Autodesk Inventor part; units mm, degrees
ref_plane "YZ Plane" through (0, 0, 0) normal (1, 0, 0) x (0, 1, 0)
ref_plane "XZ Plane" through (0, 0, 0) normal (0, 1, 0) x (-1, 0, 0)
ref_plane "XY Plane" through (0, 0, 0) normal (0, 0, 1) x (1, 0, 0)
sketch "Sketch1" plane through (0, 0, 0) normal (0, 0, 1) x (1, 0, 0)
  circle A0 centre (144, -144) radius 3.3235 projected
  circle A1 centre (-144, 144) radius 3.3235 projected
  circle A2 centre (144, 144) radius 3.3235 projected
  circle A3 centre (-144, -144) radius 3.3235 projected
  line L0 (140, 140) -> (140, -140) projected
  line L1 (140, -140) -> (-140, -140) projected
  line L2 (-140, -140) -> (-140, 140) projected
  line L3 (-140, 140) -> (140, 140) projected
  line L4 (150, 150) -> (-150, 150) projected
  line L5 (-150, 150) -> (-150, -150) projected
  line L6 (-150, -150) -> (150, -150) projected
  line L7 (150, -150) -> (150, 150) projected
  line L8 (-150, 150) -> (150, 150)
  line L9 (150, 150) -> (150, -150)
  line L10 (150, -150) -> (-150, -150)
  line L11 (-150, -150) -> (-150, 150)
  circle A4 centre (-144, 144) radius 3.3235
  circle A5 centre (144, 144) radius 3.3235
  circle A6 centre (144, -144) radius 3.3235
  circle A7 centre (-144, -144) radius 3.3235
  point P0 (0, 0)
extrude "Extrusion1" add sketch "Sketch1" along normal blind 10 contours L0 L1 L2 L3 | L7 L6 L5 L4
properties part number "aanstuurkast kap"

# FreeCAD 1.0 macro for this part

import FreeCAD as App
import Part
import Sketcher
from FreeCAD import Vector


def add_polygon(sketch, points):
    """Adds a closed chain of lines whose ends are joined by coincident constraints."""
    first, n = sketch.GeometryCount, len(points)
    for a, b in zip(points, points[1:] + points[:1]):
        sketch.addGeometry(Part.LineSegment(App.Vector(*a, 0), App.Vector(*b, 0)), False)
    for i in range(n):
        sketch.addConstraint(Sketcher.Constraint("Coincident", first + i, 2, first + (i + 1) % n, 1))

doc = App.newDocument("Part")
params = doc.addObject("Spreadsheet::Sheet", "Params")
for row, (alias, value) in enumerate([
    ("sketch1_width", "300 mm"),
    ("pad1_length", "10 mm"),
], start=1):
    params.set(f"A{row}", alias)
    params.set(f"B{row}", "=" + value)
    params.setAlias(f"B{row}", alias)

body = doc.addObject("PartDesign::Body", "Body")

# Sketch on XY plane
sketch1 = body.newObject("Sketcher::SketchObject", "Sketch")
sketch1.AttachmentSupport = (doc.getObject("XY_Plane"), [""])
sketch1.MapMode = "FlatFace"
add_polygon(sketch1, [(150, -150), (150, 150), (-150, 150), (-150, -150)])  # lines 0-3
sketch1.addGeometry(Part.Circle(Vector(-144, -144, 0), Vector(0, 0, 1), 3.3), False)  # 4
sketch1.addGeometry(Part.Circle(Vector(144, -144, 0), Vector(0, 0, 1), 3.3), False)  # 5
sketch1.addGeometry(Part.Circle(Vector(-144, 144, 0), Vector(0, 0, 1), 3.3), False)  # 6
sketch1.addGeometry(Part.Circle(Vector(144, 144, 0), Vector(0, 0, 1), 3.3), False)  # 7
sketch1.addConstraint([
    Sketcher.Constraint("Vertical", 0),
    Sketcher.Constraint("Horizontal", 1),
    Sketcher.Constraint("Vertical", 2),
    Sketcher.Constraint("Horizontal", 3),
    Sketcher.Constraint("Equal", 4, 5),
    Sketcher.Constraint("Equal", 5, 6),
    Sketcher.Constraint("Equal", 6, 7),
    Sketcher.Constraint("Symmetric", 5, 3, 6, 3, -1, 1),
    Sketcher.Constraint("Symmetric", 4, 3, 7, 3, -1, 1),
    Sketcher.Constraint("Symmetric", 0, 2, 2, 2, -1, 1),
    Sketcher.Constraint("Symmetric", 4, 3, 5, 3, -2),
    Sketcher.Constraint("Equal", 3, 0),
    Sketcher.Constraint("DistanceX", 1, 2, 1, 1, 300.0),
    Sketcher.Constraint("Diameter", 4, 6.647),
    Sketcher.Constraint("DistanceX", 4, 3, -1, 1, 144.0),
    Sketcher.Constraint("DistanceY", 4, 3, -1, 1, 144.0),
])
sketch1.setExpression("Constraints[16]", "Params.sketch1_width")
pad1 = body.newObject("PartDesign::Pad", "Pad")
pad1.Profile = sketch1
pad1.setExpression("Length", "Params.pad1_length")

doc.recompute()
